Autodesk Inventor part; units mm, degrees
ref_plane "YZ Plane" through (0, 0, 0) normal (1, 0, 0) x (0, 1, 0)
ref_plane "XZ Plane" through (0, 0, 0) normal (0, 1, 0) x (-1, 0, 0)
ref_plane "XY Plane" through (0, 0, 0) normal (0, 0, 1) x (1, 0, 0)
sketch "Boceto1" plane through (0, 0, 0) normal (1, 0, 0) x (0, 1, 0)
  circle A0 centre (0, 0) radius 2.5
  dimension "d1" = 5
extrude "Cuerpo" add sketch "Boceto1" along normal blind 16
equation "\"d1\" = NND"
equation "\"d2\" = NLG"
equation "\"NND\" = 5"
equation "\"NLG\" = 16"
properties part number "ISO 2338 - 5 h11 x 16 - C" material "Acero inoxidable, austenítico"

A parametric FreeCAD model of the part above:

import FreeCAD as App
import Part
import Sketcher
Q = App.Units.Quantity

doc = App.newDocument("Part")
body = doc.addObject("PartDesign::Body", "Body")

# Sketch on YZ plane
sketch1 = body.newObject("Sketcher::SketchObject", "Sketch")
sketch1.AttachmentSupport = (doc.getObject("YZ_Plane"), [""])
sketch1.MapMode = "FlatFace"
sketch1.addGeometry(Part.Circle(App.Vector(0, 0, 0), App.Vector(0, 0, 1), 2.5), False)
sketch1.addConstraint(Sketcher.Constraint("Coincident", 0, 3, -1, 1))
sketch1.addConstraint(Sketcher.Constraint("Diameter", 0, Q("5 mm")))
pad1 = body.newObject("PartDesign::Pad", "Pad")
pad1.Profile = sketch1
pad1.Length = 16

doc.recompute()
